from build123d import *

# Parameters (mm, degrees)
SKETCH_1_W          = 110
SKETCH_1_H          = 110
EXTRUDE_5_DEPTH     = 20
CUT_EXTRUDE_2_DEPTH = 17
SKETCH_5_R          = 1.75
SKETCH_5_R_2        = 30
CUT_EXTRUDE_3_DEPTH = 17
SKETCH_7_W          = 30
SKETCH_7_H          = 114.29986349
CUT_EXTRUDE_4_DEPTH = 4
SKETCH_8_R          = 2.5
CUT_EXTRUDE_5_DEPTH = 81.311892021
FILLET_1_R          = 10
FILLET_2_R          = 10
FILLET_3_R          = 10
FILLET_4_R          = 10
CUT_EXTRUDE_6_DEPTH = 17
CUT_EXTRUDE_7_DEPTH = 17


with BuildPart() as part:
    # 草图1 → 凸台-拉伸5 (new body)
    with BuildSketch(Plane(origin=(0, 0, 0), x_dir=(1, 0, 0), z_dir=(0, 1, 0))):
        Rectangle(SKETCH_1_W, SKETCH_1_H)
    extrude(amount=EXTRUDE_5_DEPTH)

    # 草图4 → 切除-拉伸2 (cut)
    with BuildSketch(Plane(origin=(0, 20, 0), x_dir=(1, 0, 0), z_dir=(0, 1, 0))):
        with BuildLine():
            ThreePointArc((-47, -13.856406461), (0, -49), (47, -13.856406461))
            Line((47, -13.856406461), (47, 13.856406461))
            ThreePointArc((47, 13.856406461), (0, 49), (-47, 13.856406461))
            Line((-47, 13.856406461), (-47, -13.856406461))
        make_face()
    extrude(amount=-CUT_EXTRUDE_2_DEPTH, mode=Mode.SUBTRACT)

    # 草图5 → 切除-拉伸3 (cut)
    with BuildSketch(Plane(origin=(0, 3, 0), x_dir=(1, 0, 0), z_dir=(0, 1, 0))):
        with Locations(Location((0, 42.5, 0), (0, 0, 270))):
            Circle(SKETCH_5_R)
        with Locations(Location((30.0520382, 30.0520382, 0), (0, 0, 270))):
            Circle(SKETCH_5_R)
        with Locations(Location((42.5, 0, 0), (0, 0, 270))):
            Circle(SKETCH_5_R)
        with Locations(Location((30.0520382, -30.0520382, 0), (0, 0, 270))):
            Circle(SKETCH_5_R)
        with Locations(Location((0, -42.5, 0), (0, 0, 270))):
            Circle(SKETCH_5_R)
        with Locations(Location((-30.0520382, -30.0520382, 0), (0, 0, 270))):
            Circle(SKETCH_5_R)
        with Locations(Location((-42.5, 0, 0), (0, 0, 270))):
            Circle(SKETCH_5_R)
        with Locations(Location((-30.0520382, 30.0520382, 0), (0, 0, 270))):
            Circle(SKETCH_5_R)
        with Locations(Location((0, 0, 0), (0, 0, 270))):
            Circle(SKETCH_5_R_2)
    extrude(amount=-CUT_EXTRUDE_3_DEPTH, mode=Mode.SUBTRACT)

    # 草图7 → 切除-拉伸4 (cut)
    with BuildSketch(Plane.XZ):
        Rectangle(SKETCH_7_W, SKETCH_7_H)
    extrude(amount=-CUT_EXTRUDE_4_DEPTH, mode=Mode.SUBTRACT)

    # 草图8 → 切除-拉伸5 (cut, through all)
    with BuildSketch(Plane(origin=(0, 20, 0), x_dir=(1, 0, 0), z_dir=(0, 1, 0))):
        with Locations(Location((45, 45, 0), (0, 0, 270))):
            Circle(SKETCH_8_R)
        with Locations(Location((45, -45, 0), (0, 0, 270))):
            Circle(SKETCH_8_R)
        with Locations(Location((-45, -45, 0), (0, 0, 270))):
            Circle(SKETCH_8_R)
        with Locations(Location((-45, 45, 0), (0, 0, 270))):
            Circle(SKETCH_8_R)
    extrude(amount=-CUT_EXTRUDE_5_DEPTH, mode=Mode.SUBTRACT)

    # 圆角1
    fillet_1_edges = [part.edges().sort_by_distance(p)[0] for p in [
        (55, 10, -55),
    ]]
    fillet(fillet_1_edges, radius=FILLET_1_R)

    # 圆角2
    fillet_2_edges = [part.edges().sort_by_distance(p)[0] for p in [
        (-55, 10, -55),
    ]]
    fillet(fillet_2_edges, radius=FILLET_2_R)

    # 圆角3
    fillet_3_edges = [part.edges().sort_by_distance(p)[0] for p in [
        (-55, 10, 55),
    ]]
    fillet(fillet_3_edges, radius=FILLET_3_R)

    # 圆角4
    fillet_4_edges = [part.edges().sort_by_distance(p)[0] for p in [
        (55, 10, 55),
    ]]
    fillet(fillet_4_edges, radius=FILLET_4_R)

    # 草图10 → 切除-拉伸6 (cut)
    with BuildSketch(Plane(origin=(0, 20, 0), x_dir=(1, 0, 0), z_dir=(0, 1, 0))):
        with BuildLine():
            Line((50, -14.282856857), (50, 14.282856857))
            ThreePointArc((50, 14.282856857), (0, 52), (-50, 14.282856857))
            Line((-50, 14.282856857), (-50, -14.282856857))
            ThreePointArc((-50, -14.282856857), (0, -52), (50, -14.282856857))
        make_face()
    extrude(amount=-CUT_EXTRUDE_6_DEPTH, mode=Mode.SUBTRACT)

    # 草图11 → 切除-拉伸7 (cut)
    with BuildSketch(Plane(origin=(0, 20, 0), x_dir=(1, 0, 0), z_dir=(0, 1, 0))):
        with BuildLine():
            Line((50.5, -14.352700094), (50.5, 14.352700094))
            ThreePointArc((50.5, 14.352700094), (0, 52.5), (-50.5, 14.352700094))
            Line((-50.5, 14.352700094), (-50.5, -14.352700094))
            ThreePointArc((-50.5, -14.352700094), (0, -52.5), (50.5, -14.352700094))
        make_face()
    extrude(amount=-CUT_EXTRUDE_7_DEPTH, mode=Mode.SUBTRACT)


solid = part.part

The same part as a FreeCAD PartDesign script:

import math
import FreeCAD as App
import Part
import Sketcher


def edges_at(feature, points):
    """Names of the edges that pass closest to the given points."""
    edges = feature.Shape.Edges
    near = lambda p: min(range(len(edges)), key=lambda i: edges[i].distToShape(Part.Vertex(*p))[0])
    return sorted({f"Edge{near(p) + 1}" for p in points})


def add_polygon(sketch, points):
    """Adds a closed chain of lines whose ends are joined by coincident constraints."""
    first, n = sketch.GeometryCount, len(points)
    for a, b in zip(points, points[1:] + points[:1]):
        sketch.addGeometry(Part.LineSegment(App.Vector(*a, 0), App.Vector(*b, 0)), False)
    for i in range(n):
        sketch.addConstraint(Sketcher.Constraint("Coincident", first + i, 2, first + (i + 1) % n, 1))

doc = App.newDocument("Part")
params = doc.addObject("Spreadsheet::Sheet", "Params")
for row, (alias, value) in enumerate([
    ("sketch1_width", "110 mm"),
    ("pad1_length", "20 mm"),
    ("sketch2_radius", "49 mm"),
    ("pocket1_length", "17 mm"),
    ("sketch3_diameter", "60 mm"),
    ("sketch3_diameter2", "3.5 mm"),
    ("pocket2_length", "17 mm"),
    ("sketch4_width", "30 mm"),
    ("pocket3_length", "4 mm"),
    ("sketch5_diameter", "5 mm"),
    ("fillet_radius", "10 mm"),
    ("fillet2_radius", "10 mm"),
    ("fillet3_radius", "10 mm"),
    ("fillet4_radius", "10 mm"),
    ("sketch6_radius", "52 mm"),
    ("pocket5_length", "17 mm"),
    ("sketch7_radius", "52.5 mm"),
    ("pocket6_length", "17 mm"),
], start=1):
    params.set(f"A{row}", alias)
    params.set(f"B{row}", "=" + value)
    params.setAlias(f"B{row}", alias)

body = doc.addObject("PartDesign::Body", "Body")

# Sketch on XZ plane
sketch1 = doc.addObject("Sketcher::SketchObject", "Sketch")
body.addObject(sketch1)
sketch1.AttachmentSupport = (doc.XZ_Plane, [""])
sketch1.MapMode = "FlatFace"
add_polygon(sketch1, [(-55, -55), (-55, 55), (55, 55), (55, -55)])  # lines 0-3
sketch1.addConstraint([
    Sketcher.Constraint("Vertical", 0),
    Sketcher.Constraint("Horizontal", 1),
    Sketcher.Constraint("Vertical", 2),
    Sketcher.Constraint("Horizontal", 3),
    Sketcher.Constraint("Symmetric", 0, 2, 2, 2, -1, 1),
    Sketcher.Constraint("Equal", 3, 0),
    Sketcher.Constraint("DistanceX", 1, 1, 1, 2, 110.0),
])
sketch1.setExpression("Constraints[10]", "Params.sketch1_width")
pad1 = doc.addObject("PartDesign::Pad", "Pad")
body.addObject(pad1)
pad1.Profile = sketch1
pad1.setExpression("Length", "Params.pad1_length")
pad1.Reversed = True

# Sketch on XZ plane
sketch2 = doc.addObject("Sketcher::SketchObject", "Sketch001")
body.addObject(sketch2)
sketch2.AttachmentSupport = (doc.XZ_Plane, [""])
sketch2.MapMode = "FlatFace"
sketch2.AttachmentOffset = App.Placement(App.Vector(0, 0, -20), App.Rotation())
sketch2.addGeometry([
    Part.ArcOfCircle(Part.Circle(App.Vector(0, 0, 0), App.Vector(0, 0, 1), 49), math.radians(16), math.radians(164)),
    Part.LineSegment(App.Vector(47, 14, 0), App.Vector(47, -14, 0)),
    Part.ArcOfCircle(Part.Circle(App.Vector(0, 0, 0), App.Vector(0, 0, 1), 49), math.radians(-164), math.radians(-16)),
    Part.LineSegment(App.Vector(-47, -14, 0), App.Vector(-47, 14, 0)),
], False)
sketch2.addConstraint([
    Sketcher.Constraint("Coincident", 0, 1, 1, 1),
    Sketcher.Constraint("Coincident", 1, 2, 2, 2),
    Sketcher.Constraint("Coincident", 2, 1, 3, 1),
    Sketcher.Constraint("Coincident", 3, 2, 0, 2),
    Sketcher.Constraint("Vertical", 1),
    Sketcher.Constraint("Vertical", 3),
    Sketcher.Constraint("Coincident", 0, 3, -1, 1),
    Sketcher.Constraint("Coincident", 2, 3, -1, 1),
    Sketcher.Constraint("Equal", 0, 2),
    Sketcher.Constraint("Horizontal", 1, 2, 2, 1),
    Sketcher.Constraint("Radius", 0, 49.0),
    Sketcher.Constraint("DistanceX", -1, 1, 0, 1, 47.0),
])
sketch2.setExpression("Constraints[10]", "Params.sketch2_radius")
pocket1 = doc.addObject("PartDesign::Pocket", "Pocket")
body.addObject(pocket1)
pocket1.Profile = sketch2
pocket1.setExpression("Length", "Params.pocket1_length")
pocket1.Reversed = True

# Sketch on XZ plane
sketch3 = doc.addObject("Sketcher::SketchObject", "Sketch002")
body.addObject(sketch3)
sketch3.AttachmentSupport = (doc.XZ_Plane, [""])
sketch3.MapMode = "FlatFace"
sketch3.AttachmentOffset = App.Placement(App.Vector(0, 0, -3), App.Rotation())
sketch3.addGeometry([
    Part.Circle(App.Vector(0, -42.5, 0), App.Vector(0, 0, 1), 1.8),  # 0
    Part.Circle(App.Vector(30.1, -30.1, 0), App.Vector(0, 0, 1), 1.8),  # 1
    Part.Circle(App.Vector(42.5, 0, 0), App.Vector(0, 0, 1), 1.8),  # 2
    Part.Circle(App.Vector(30.1, 30.1, 0), App.Vector(0, 0, 1), 1.8),  # 3
    Part.Circle(App.Vector(0, 42.5, 0), App.Vector(0, 0, 1), 1.8),  # 4
    Part.Circle(App.Vector(-30.1, 30.1, 0), App.Vector(0, 0, 1), 1.8),  # 5
    Part.Circle(App.Vector(-42.5, 0, 0), App.Vector(0, 0, 1), 1.8),  # 6
    Part.Circle(App.Vector(-30.1, -30.1, 0), App.Vector(0, 0, 1), 1.8),  # 7
    Part.Circle(App.Vector(0, 0, 0), App.Vector(0, 0, 1), 30),  # 8
], False)
sketch3.addConstraint([
    Sketcher.Constraint("Coincident", 8, 3, -1, 1),
    Sketcher.Constraint("Equal", 0, 1),
    Sketcher.Constraint("Equal", 1, 2),
    Sketcher.Constraint("Equal", 2, 3),
    Sketcher.Constraint("Equal", 3, 4),
    Sketcher.Constraint("Equal", 4, 5),
    Sketcher.Constraint("Equal", 5, 6),
    Sketcher.Constraint("Equal", 6, 7),
    Sketcher.Constraint("Symmetric", 0, 3, 4, 3, -1, 1),
    Sketcher.Constraint("Symmetric", 1, 3, 5, 3, -1, 1),
    Sketcher.Constraint("Symmetric", 2, 3, 6, 3, -1, 1),
    Sketcher.Constraint("Symmetric", 3, 3, 7, 3, -1, 1),
    Sketcher.Constraint("Symmetric", 3, 3, 5, 3, -2),
    Sketcher.Constraint("PointOnObject", 0, 3, -2),
    Sketcher.Constraint("PointOnObject", 2, 3, -1),
    Sketcher.Constraint("Diameter", 8, 60.0),
    Sketcher.Constraint("Diameter", 0, 3.5),
    Sketcher.Constraint("DistanceY", 0, 3, 4, 3, 85.0),
    Sketcher.Constraint("DistanceX", -1, 1, 2, 3, 42.5),
    Sketcher.Constraint("DistanceX", -1, 1, 1, 3, 30.052038),
    Sketcher.Constraint("DistanceY", 1, 3, -1, 1, 30.052038),
])
sketch3.setExpression("Constraints[15]", "Params.sketch3_diameter")
sketch3.setExpression("Constraints[16]", "Params.sketch3_diameter2")
pocket2 = doc.addObject("PartDesign::Pocket", "Pocket001")
body.addObject(pocket2)
pocket2.Profile = sketch3
pocket2.setExpression("Length", "Params.pocket2_length")
pocket2.Reversed = True

# Sketch on XZ plane
sketch4 = doc.addObject("Sketcher::SketchObject", "Sketch003")
body.addObject(sketch4)
sketch4.AttachmentSupport = (doc.XZ_Plane, [""])
sketch4.MapMode = "FlatFace"
add_polygon(sketch4, [(-15, 57), (-15, -57), (15, -57), (15, 57)])  # lines 0-3
sketch4.addConstraint([
    Sketcher.Constraint("Vertical", 0),
    Sketcher.Constraint("Horizontal", 1),
    Sketcher.Constraint("Vertical", 2),
    Sketcher.Constraint("Horizontal", 3),
    Sketcher.Constraint("Symmetric", 0, 2, 2, 2, -1, 1),
    Sketcher.Constraint("DistanceX", 1, 1, 1, 2, 30.0),
    Sketcher.Constraint("DistanceY", 0, 2, 0, 1, 114.299863),
])
sketch4.setExpression("Constraints[9]", "Params.sketch4_width")
pocket3 = doc.addObject("PartDesign::Pocket", "Pocket002")
body.addObject(pocket3)
pocket3.Profile = sketch4
pocket3.setExpression("Length", "Params.pocket3_length")

# Sketch on XZ plane
sketch5 = doc.addObject("Sketcher::SketchObject", "Sketch004")
body.addObject(sketch5)
sketch5.AttachmentSupport = (doc.XZ_Plane, [""])
sketch5.MapMode = "FlatFace"
sketch5.AttachmentOffset = App.Placement(App.Vector(0, 0, -20), App.Rotation())
sketch5.addGeometry([
    Part.Circle(App.Vector(45, -45, 0), App.Vector(0, 0, 1), 2.5),
    Part.Circle(App.Vector(45, 45, 0), App.Vector(0, 0, 1), 2.5),
    Part.Circle(App.Vector(-45, 45, 0), App.Vector(0, 0, 1), 2.5),
    Part.Circle(App.Vector(-45, -45, 0), App.Vector(0, 0, 1), 2.5),
], False)
sketch5.addConstraint([
    Sketcher.Constraint("Equal", 0, 1),
    Sketcher.Constraint("Equal", 1, 2),
    Sketcher.Constraint("Equal", 2, 3),
    Sketcher.Constraint("Symmetric", 0, 3, 2, 3, -1, 1),
    Sketcher.Constraint("Symmetric", 1, 3, 3, 3, -1, 1),
    Sketcher.Constraint("Symmetric", 1, 3, 2, 3, -2),
    Sketcher.Constraint("Diameter", 0, 5.0),
    Sketcher.Constraint("DistanceX", -1, 1, 0, 3, 45.0),
    Sketcher.Constraint("DistanceY", 0, 3, -1, 1, 45.0),
])
sketch5.setExpression("Constraints[6]", "Params.sketch5_diameter")
pocket4 = doc.addObject("PartDesign::Pocket", "Pocket003")
body.addObject(pocket4)
pocket4.Profile = sketch5
pocket4.Type = "ThroughAll"
pocket4.Reversed = True
doc.recompute()

fillet = doc.addObject("PartDesign::Fillet", "Fillet")
body.addObject(fillet)
fillet.Base = (pocket4, edges_at(pocket4, [(55, 10, -55)]))
fillet.setExpression("Radius", "Params.fillet_radius")
doc.recompute()

fillet2 = doc.addObject("PartDesign::Fillet", "Fillet001")
body.addObject(fillet2)
fillet2.Base = (fillet, edges_at(fillet, [(-55, 10, -55)]))
fillet2.setExpression("Radius", "Params.fillet2_radius")
doc.recompute()

fillet3 = doc.addObject("PartDesign::Fillet", "Fillet002")
body.addObject(fillet3)
fillet3.Base = (fillet2, edges_at(fillet2, [(-55, 10, 55)]))
fillet3.setExpression("Radius", "Params.fillet3_radius")
doc.recompute()

fillet4 = doc.addObject("PartDesign::Fillet", "Fillet003")
body.addObject(fillet4)
fillet4.Base = (fillet3, edges_at(fillet3, [(55, 10, 55)]))
fillet4.setExpression("Radius", "Params.fillet4_radius")

# Sketch on XZ plane
sketch6 = doc.addObject("Sketcher::SketchObject", "Sketch005")
body.addObject(sketch6)
sketch6.AttachmentSupport = (doc.XZ_Plane, [""])
sketch6.MapMode = "FlatFace"
sketch6.AttachmentOffset = App.Placement(App.Vector(0, 0, -20), App.Rotation())
sketch6.addGeometry([
    Part.LineSegment(App.Vector(50, 14, 0), App.Vector(50, -14, 0)),
    Part.ArcOfCircle(Part.Circle(App.Vector(0, 0, 0), App.Vector(0, 0, 1), 52), math.radians(-164), math.radians(-16)),
    Part.LineSegment(App.Vector(-50, -14, 0), App.Vector(-50, 14, 0)),
    Part.ArcOfCircle(Part.Circle(App.Vector(0, 0, 0), App.Vector(0, 0, 1), 52), math.radians(16), math.radians(164)),
], False)
sketch6.addConstraint([
    Sketcher.Constraint("Coincident", 0, 2, 1, 2),
    Sketcher.Constraint("Coincident", 1, 1, 2, 1),
    Sketcher.Constraint("Coincident", 2, 2, 3, 2),
    Sketcher.Constraint("Coincident", 3, 1, 0, 1),
    Sketcher.Constraint("Vertical", 0),
    Sketcher.Constraint("Vertical", 2),
    Sketcher.Constraint("Coincident", 1, 3, -1, 1),
    Sketcher.Constraint("Coincident", 3, 3, -1, 1),
    Sketcher.Constraint("Equal", 1, 3),
    Sketcher.Constraint("Horizontal", 0, 2, 1, 1),
    Sketcher.Constraint("Radius", 1, 52.0),
    Sketcher.Constraint("DistanceX", -1, 1, 0, 2, 50.0),
])
sketch6.setExpression("Constraints[10]", "Params.sketch6_radius")
pocket5 = doc.addObject("PartDesign::Pocket", "Pocket004")
body.addObject(pocket5)
pocket5.Profile = sketch6
pocket5.setExpression("Length", "Params.pocket5_length")
pocket5.Reversed = True

# Sketch on XZ plane
sketch7 = doc.addObject("Sketcher::SketchObject", "Sketch006")
body.addObject(sketch7)
sketch7.AttachmentSupport = (doc.XZ_Plane, [""])
sketch7.MapMode = "FlatFace"
sketch7.AttachmentOffset = App.Placement(App.Vector(0, 0, -20), App.Rotation())
sketch7.addGeometry([
    Part.LineSegment(App.Vector(50, 14, 0), App.Vector(50, -14, 0)),
    Part.ArcOfCircle(Part.Circle(App.Vector(0, 0, 0), App.Vector(0, 0, 1), 52), math.radians(-164), math.radians(-16)),
    Part.LineSegment(App.Vector(-50, -14, 0), App.Vector(-50, 14, 0)),
    Part.ArcOfCircle(Part.Circle(App.Vector(0, 0, 0), App.Vector(0, 0, 1), 52), math.radians(16), math.radians(164)),
], False)
sketch7.addConstraint([
    Sketcher.Constraint("Coincident", 0, 2, 1, 2),
    Sketcher.Constraint("Coincident", 1, 1, 2, 1),
    Sketcher.Constraint("Coincident", 2, 2, 3, 2),
    Sketcher.Constraint("Coincident", 3, 1, 0, 1),
    Sketcher.Constraint("Vertical", 0),
    Sketcher.Constraint("Vertical", 2),
    Sketcher.Constraint("Coincident", 1, 3, -1, 1),
    Sketcher.Constraint("Coincident", 3, 3, -1, 1),
    Sketcher.Constraint("Equal", 1, 3),
    Sketcher.Constraint("Horizontal", 0, 2, 1, 1),
    Sketcher.Constraint("Radius", 1, 52.5),
    Sketcher.Constraint("DistanceX", 1, 1, 0, 2, 101.0),
])
sketch7.setExpression("Constraints[10]", "Params.sketch7_radius")
pocket6 = doc.addObject("PartDesign::Pocket", "Pocket005")
body.addObject(pocket6)
pocket6.Profile = sketch7
pocket6.setExpression("Length", "Params.pocket6_length")
pocket6.Reversed = True

doc.recompute()
